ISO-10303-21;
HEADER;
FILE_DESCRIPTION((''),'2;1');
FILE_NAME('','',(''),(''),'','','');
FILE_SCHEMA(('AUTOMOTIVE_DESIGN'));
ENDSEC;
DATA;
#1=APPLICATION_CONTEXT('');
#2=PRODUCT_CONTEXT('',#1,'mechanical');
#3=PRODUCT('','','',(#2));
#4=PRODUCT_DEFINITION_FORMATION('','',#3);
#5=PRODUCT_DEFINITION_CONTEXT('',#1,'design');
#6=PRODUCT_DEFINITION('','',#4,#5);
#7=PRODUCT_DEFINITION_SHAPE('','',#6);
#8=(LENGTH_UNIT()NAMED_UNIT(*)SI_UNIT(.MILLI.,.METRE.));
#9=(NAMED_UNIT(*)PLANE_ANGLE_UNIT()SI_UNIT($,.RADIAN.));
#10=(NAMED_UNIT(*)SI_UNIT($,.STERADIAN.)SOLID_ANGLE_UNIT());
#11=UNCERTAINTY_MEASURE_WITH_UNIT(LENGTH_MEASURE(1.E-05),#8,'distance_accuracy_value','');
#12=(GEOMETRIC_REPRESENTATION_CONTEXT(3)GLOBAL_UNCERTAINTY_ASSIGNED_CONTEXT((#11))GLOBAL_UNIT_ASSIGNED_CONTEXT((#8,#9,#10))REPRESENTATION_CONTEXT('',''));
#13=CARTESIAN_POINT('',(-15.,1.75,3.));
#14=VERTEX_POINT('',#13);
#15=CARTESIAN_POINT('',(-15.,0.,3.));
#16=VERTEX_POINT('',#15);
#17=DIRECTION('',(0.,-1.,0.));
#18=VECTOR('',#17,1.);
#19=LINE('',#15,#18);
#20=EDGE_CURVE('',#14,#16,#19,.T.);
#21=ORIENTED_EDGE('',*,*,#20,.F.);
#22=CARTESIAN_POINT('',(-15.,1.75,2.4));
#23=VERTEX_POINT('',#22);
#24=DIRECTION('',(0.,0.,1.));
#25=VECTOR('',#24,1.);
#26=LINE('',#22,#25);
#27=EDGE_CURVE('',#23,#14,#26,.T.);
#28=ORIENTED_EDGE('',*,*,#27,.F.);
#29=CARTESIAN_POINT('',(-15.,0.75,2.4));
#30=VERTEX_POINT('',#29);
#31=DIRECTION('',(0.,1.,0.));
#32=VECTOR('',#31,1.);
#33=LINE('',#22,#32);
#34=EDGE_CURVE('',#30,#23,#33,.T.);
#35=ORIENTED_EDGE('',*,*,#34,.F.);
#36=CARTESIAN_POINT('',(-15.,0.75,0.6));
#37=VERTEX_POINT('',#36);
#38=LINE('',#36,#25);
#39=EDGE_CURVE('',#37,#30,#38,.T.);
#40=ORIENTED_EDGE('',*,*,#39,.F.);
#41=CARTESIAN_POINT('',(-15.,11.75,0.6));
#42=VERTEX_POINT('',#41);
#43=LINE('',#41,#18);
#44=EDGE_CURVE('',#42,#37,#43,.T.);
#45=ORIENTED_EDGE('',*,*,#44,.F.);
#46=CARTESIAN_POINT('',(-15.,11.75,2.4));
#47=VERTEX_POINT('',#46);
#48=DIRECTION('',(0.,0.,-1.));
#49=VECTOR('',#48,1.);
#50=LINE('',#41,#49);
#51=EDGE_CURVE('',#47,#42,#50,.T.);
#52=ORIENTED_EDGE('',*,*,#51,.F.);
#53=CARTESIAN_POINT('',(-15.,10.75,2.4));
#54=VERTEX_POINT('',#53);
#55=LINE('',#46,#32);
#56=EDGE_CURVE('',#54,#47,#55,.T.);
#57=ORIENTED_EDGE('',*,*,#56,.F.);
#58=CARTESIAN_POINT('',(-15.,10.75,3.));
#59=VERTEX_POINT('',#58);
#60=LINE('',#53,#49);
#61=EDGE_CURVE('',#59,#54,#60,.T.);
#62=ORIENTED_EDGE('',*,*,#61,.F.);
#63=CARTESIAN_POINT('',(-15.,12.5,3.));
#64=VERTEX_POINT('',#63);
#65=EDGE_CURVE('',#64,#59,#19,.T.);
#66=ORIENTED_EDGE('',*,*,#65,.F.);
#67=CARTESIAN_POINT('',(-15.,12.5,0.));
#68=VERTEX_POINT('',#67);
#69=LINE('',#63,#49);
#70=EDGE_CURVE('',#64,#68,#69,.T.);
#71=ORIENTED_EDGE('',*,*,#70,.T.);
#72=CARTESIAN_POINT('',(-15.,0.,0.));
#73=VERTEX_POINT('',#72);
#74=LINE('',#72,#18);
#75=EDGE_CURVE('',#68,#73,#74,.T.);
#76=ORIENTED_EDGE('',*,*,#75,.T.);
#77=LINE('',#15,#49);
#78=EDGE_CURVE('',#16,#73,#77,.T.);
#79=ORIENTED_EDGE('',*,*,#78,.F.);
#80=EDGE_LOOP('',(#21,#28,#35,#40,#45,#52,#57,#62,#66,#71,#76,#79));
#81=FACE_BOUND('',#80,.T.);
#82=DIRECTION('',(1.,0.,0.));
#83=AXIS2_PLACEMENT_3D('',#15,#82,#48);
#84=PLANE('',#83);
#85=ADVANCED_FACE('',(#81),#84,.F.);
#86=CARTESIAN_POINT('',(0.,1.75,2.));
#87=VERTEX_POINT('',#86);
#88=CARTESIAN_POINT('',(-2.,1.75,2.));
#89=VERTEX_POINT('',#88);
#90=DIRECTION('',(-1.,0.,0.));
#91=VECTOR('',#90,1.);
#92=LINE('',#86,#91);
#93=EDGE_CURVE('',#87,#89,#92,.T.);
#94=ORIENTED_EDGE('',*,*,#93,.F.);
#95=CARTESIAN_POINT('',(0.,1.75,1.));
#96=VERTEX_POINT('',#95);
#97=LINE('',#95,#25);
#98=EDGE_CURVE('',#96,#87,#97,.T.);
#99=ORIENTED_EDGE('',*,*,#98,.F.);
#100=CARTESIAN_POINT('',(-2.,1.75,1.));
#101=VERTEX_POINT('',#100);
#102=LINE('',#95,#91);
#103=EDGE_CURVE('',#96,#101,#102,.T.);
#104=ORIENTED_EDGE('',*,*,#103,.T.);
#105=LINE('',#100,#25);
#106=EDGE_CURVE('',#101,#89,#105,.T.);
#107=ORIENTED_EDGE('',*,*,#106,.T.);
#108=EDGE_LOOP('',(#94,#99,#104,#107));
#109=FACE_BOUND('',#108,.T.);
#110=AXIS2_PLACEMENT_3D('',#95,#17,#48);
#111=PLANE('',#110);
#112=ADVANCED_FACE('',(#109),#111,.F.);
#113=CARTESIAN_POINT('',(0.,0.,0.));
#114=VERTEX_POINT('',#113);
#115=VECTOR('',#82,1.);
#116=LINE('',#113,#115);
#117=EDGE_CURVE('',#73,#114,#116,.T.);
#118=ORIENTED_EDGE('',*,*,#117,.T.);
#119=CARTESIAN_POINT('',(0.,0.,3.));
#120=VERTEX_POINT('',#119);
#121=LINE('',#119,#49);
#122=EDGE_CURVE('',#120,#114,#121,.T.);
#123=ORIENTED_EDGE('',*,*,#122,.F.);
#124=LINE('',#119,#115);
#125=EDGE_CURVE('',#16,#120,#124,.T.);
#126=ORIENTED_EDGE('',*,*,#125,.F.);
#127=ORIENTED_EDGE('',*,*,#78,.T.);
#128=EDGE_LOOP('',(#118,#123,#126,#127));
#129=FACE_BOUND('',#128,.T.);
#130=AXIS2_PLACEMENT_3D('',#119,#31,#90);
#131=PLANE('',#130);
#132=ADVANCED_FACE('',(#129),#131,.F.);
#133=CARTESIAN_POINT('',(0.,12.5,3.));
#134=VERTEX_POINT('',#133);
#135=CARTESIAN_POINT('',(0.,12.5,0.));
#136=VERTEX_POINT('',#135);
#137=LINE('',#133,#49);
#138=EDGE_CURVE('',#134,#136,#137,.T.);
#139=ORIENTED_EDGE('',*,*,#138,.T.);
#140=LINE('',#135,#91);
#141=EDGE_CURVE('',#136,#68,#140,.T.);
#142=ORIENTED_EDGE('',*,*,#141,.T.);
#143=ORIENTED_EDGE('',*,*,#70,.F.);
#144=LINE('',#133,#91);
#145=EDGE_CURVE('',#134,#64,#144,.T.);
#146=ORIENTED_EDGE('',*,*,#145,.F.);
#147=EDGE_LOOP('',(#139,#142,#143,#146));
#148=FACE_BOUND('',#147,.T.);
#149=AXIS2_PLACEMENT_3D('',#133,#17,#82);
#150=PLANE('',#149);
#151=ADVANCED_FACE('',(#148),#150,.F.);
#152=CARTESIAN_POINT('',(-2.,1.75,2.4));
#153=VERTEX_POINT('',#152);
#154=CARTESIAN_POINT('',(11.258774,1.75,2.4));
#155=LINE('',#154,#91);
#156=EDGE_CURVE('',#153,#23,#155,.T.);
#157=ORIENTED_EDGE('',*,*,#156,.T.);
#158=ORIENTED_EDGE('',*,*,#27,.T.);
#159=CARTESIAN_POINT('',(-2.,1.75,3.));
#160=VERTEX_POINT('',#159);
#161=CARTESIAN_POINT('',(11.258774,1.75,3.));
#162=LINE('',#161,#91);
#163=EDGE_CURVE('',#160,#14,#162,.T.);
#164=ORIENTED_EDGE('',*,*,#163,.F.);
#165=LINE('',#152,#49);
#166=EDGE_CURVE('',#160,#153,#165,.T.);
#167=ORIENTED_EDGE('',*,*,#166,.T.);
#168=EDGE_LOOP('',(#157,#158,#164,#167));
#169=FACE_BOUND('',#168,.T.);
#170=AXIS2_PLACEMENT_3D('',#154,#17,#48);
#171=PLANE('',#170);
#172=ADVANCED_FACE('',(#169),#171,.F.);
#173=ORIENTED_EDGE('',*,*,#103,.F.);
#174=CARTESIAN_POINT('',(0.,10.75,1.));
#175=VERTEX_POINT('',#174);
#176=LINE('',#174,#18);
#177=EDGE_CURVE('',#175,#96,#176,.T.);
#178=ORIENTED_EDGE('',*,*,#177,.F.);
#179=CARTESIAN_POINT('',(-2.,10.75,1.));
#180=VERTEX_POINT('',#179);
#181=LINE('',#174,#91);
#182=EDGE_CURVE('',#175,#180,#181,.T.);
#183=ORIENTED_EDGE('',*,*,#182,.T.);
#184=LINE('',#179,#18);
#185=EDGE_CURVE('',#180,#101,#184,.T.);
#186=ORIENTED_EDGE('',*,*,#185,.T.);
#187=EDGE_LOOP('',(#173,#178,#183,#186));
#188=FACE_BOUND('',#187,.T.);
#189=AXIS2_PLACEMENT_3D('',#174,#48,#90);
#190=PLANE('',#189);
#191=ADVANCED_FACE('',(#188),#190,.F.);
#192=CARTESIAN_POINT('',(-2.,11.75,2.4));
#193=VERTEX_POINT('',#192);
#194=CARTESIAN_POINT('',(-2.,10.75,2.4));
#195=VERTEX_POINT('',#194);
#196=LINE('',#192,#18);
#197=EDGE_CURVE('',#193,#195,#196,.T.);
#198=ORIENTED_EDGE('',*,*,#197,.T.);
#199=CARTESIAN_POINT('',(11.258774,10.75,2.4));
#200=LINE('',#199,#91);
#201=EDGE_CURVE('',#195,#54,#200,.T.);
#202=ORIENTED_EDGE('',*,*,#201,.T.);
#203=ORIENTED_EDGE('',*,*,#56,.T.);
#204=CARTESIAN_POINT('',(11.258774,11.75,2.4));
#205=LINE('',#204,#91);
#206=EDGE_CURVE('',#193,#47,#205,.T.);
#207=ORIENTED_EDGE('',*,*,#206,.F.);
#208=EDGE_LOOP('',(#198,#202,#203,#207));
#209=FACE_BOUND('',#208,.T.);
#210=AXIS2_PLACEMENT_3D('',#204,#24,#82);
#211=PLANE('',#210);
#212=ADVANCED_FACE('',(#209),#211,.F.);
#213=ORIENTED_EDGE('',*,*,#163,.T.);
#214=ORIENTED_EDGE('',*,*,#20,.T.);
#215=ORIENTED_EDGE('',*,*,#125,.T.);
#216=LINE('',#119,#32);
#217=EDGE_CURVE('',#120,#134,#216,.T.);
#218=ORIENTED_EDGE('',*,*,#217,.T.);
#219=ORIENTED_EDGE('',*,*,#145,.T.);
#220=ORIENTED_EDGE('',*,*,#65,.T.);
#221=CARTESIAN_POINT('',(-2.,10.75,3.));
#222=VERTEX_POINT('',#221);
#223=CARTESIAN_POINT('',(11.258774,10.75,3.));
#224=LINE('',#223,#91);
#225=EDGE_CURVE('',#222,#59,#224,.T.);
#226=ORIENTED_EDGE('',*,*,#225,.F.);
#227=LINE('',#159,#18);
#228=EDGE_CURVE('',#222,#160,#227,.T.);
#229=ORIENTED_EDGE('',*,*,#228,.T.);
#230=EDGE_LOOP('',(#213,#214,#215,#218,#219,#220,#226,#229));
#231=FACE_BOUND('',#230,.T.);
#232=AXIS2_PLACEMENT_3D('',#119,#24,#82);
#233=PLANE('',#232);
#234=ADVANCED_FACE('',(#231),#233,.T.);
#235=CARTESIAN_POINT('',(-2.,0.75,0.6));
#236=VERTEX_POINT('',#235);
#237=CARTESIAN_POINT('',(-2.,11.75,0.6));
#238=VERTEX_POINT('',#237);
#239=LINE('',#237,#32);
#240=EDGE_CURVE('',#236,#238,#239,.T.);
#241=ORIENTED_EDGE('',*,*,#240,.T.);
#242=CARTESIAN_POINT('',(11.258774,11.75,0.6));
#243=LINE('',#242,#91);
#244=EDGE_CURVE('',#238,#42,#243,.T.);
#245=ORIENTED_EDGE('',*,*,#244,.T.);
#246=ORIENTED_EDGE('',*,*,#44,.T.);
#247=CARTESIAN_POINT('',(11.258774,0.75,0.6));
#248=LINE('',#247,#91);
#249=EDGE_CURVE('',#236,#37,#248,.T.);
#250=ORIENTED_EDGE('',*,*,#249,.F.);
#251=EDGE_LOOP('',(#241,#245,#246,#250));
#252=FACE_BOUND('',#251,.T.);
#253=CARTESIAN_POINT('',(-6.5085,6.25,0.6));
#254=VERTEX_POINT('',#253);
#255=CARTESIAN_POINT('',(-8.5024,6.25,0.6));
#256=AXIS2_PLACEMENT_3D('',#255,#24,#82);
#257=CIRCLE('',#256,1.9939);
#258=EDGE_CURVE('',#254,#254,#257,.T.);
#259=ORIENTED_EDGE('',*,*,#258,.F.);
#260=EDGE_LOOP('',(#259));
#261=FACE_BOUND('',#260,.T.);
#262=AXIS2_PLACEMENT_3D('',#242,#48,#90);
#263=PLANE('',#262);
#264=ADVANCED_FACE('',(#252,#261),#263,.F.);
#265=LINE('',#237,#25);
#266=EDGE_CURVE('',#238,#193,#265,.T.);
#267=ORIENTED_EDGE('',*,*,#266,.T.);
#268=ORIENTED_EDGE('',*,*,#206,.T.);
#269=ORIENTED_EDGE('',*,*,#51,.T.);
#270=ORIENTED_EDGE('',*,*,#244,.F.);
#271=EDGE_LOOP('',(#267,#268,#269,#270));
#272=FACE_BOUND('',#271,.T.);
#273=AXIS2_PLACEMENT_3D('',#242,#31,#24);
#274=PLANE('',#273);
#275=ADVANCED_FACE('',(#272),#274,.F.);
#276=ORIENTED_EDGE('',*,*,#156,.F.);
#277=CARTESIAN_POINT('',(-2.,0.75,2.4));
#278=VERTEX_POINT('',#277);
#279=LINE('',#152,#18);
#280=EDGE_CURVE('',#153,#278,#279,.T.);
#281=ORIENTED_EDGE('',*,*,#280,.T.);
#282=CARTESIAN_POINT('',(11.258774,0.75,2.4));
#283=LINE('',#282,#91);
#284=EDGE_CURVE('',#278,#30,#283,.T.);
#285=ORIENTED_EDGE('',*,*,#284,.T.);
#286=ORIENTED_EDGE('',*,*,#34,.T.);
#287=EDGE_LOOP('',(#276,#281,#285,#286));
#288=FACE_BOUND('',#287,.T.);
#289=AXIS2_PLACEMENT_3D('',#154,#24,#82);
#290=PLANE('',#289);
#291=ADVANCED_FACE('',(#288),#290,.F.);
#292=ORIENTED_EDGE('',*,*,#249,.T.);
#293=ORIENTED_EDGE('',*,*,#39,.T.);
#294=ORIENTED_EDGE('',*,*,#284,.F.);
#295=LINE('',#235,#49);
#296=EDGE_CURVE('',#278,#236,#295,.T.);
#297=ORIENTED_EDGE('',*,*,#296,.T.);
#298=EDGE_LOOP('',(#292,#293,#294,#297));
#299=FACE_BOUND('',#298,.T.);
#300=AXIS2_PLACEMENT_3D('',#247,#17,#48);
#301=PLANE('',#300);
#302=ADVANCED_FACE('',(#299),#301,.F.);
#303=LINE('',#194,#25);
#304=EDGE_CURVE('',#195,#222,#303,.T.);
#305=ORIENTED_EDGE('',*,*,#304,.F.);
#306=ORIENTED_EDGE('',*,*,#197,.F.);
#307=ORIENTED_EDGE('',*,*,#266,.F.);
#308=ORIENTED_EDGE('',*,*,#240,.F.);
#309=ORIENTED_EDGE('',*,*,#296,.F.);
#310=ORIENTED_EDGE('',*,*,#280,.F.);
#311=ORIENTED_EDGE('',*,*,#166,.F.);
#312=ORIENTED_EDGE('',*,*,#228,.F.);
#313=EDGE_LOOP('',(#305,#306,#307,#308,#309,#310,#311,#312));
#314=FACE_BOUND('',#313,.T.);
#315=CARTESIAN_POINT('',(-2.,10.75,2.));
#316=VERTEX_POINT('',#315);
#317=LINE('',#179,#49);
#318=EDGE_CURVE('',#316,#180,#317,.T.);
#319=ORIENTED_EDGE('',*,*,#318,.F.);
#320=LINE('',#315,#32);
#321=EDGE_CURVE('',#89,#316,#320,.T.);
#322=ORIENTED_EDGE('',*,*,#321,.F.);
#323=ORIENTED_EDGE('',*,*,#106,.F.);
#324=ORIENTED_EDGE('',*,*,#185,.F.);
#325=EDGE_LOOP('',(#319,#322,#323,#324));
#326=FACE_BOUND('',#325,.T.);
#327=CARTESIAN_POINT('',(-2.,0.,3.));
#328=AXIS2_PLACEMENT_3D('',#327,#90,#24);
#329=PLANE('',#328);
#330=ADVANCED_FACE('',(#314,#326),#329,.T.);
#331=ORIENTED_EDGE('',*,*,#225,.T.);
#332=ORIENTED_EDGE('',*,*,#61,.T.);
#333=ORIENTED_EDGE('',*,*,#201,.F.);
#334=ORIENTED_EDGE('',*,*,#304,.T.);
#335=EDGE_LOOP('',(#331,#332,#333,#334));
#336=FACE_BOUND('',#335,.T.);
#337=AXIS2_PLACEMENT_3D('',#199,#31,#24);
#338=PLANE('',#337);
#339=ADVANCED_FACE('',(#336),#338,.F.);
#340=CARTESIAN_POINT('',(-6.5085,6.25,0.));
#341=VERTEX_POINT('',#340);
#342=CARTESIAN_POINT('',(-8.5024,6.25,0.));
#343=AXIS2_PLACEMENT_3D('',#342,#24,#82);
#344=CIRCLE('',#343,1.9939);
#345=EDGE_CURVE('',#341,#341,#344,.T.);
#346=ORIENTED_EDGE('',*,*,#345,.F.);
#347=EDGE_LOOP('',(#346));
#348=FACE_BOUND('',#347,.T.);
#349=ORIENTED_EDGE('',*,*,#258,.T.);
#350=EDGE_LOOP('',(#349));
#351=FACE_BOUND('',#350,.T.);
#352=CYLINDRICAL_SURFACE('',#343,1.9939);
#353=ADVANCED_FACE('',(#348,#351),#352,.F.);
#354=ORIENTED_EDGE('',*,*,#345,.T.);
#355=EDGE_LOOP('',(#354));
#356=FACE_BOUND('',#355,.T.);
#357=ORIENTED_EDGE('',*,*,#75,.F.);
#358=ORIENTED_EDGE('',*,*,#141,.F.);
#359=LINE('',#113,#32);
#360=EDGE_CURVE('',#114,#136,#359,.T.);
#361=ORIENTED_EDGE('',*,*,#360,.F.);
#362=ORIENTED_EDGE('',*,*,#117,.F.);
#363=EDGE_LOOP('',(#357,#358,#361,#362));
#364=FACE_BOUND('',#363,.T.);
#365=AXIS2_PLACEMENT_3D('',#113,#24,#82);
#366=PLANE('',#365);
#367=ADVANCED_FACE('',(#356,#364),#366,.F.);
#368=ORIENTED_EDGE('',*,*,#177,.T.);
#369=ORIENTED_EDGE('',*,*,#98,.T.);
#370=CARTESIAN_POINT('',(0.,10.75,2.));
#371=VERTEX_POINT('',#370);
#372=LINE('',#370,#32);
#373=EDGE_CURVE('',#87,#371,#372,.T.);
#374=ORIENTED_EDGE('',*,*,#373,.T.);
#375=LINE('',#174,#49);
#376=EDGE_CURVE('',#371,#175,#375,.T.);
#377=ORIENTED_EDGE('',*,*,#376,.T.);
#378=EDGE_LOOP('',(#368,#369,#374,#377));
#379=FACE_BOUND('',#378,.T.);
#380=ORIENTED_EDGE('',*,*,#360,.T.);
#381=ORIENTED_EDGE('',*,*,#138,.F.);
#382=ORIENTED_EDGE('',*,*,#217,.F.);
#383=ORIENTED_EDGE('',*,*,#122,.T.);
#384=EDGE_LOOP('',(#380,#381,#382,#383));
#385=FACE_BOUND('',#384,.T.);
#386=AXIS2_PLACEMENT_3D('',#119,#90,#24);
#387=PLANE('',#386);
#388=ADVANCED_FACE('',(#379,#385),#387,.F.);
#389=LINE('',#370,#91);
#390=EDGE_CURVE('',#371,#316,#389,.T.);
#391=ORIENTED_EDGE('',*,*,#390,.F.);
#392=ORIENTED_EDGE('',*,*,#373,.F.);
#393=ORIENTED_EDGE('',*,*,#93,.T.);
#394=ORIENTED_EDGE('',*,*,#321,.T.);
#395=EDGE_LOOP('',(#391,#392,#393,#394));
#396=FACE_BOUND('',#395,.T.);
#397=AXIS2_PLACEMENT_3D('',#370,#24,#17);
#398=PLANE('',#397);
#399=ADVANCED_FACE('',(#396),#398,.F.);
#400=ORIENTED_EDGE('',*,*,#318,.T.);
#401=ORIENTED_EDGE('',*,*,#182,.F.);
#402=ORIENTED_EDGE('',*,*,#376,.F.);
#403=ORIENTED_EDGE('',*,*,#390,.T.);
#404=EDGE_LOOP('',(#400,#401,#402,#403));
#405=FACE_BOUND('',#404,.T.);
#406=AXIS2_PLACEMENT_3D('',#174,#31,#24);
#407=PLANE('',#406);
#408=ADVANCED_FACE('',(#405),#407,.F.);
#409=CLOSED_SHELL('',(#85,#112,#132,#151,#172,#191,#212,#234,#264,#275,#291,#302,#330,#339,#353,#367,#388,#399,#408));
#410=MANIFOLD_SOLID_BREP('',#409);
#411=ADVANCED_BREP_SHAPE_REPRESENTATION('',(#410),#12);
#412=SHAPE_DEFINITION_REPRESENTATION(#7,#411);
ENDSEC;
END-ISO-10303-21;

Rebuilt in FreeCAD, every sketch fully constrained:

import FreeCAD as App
import Part
import Sketcher

V = App.Vector

doc = App.newDocument("Part")
body = doc.addObject("PartDesign::Body", "Body")

# Sketch on XY plane
sketch1 = doc.addObject("Sketcher::SketchObject", "Sketch")
body.addObject(sketch1)
sketch1.AttachmentSupport = (doc.XY_Plane, [""])
sketch1.MapMode = "FlatFace"
sketch1.addGeometry([
    Part.LineSegment(V(-15, 12.5, 0), V(-15, 0, 0)),
    Part.LineSegment(V(-15, 0, 0), V(0, 0, 0)),
    Part.LineSegment(V(0, 0, 0), V(0, 12.5, 0)),
    Part.LineSegment(V(0, 12.5, 0), V(-15, 12.5, 0)),
], False)
sketch1.addConstraint([
    Sketcher.Constraint("Coincident", 0, 2, 1, 1),
    Sketcher.Constraint("Coincident", 1, 2, 2, 1),
    Sketcher.Constraint("Coincident", 2, 2, 3, 1),
    Sketcher.Constraint("Coincident", 3, 2, 0, 1),
    Sketcher.Constraint("Vertical", 0),
    Sketcher.Constraint("Horizontal", 1),
    Sketcher.Constraint("Vertical", 2),
    Sketcher.Constraint("Horizontal", 3),
    Sketcher.Constraint("Coincident", 1, 2, -1, 1),
    Sketcher.Constraint("DistanceX", 1, 1, 1, 2, 15.0),
    Sketcher.Constraint("DistanceY", 0, 2, 0, 1, 12.5),
])
pad1 = doc.addObject("PartDesign::Pad", "Pad")
body.addObject(pad1)
pad1.Profile = sketch1
pad1.Length = 3

# Sketch on YZ plane
sketch2 = doc.addObject("Sketcher::SketchObject", "Sketch001")
body.addObject(sketch2)
sketch2.AttachmentSupport = (doc.YZ_Plane, [""])
sketch2.MapMode = "FlatFace"
sketch2.AttachmentOffset = App.Placement(V(0, 0, -15), App.Rotation())
sketch2.addGeometry([
    Part.LineSegment(V(11.75, 2.4, 0), V(11.75, 0.6, 0)),  # 0
    Part.LineSegment(V(11.75, 0.6, 0), V(0.75, 0.6, 0)),  # 1
    Part.LineSegment(V(0.75, 0.6, 0), V(0.75, 2.4, 0)),  # 2
    Part.LineSegment(V(0.75, 2.4, 0), V(1.75, 2.4, 0)),  # 3
    Part.LineSegment(V(1.75, 2.4, 0), V(1.75, 3, 0)),  # 4
    Part.LineSegment(V(1.75, 3, 0), V(10.75, 3, 0)),  # 5
    Part.LineSegment(V(10.75, 3, 0), V(10.75, 2.4, 0)),  # 6
    Part.LineSegment(V(10.75, 2.4, 0), V(11.75, 2.4, 0)),  # 7
], False)
sketch2.addConstraint([
    Sketcher.Constraint("Coincident", 0, 2, 1, 1),
    Sketcher.Constraint("Coincident", 1, 2, 2, 1),
    Sketcher.Constraint("Coincident", 2, 2, 3, 1),
    Sketcher.Constraint("Coincident", 3, 2, 4, 1),
    Sketcher.Constraint("Coincident", 4, 2, 5, 1),
    Sketcher.Constraint("Coincident", 5, 2, 6, 1),
    Sketcher.Constraint("Coincident", 6, 2, 7, 1),
    Sketcher.Constraint("Coincident", 7, 2, 0, 1),
    Sketcher.Constraint("Vertical", 0),
    Sketcher.Constraint("Horizontal", 1),
    Sketcher.Constraint("Vertical", 2),
    Sketcher.Constraint("Horizontal", 3),
    Sketcher.Constraint("Vertical", 4),
    Sketcher.Constraint("Horizontal", 5),
    Sketcher.Constraint("Vertical", 6),
    Sketcher.Constraint("Horizontal", 7),
    Sketcher.Constraint("Horizontal", 3, 2, 6, 2),
    Sketcher.Constraint("Equal", 3, 7),
    Sketcher.Constraint("DistanceX", 1, 2, 1, 1, 11.0),
    Sketcher.Constraint("DistanceX", 3, 1, 3, 2, 1.0),
    Sketcher.Constraint("DistanceY", 0, 2, 0, 1, 1.8),
    Sketcher.Constraint("DistanceY", 4, 1, 4, 2, 0.6),
    Sketcher.Constraint("DistanceY", -1, 1, 4, 2, 3.0),
    Sketcher.Constraint("DistanceX", -1, 1, 0, 2, 11.75),
])
pocket1 = doc.addObject("PartDesign::Pocket", "Pocket")
body.addObject(pocket1)
pocket1.Profile = sketch2
pocket1.Length = 13
pocket1.Reversed = True

# Sketch on YZ plane
sketch3 = doc.addObject("Sketcher::SketchObject", "Sketch002")
body.addObject(sketch3)
sketch3.AttachmentSupport = (doc.YZ_Plane, [""])
sketch3.MapMode = "FlatFace"
sketch3.AttachmentOffset = App.Placement(V(0, 0, -2), App.Rotation())
sketch3.addGeometry([
    Part.LineSegment(V(10.75, 1, 0), V(1.75, 1, 0)),
    Part.LineSegment(V(1.75, 1, 0), V(1.75, 2, 0)),
    Part.LineSegment(V(1.75, 2, 0), V(10.75, 2, 0)),
    Part.LineSegment(V(10.75, 2, 0), V(10.75, 1, 0)),
], False)
sketch3.addConstraint([
    Sketcher.Constraint("Coincident", 0, 2, 1, 1),
    Sketcher.Constraint("Coincident", 1, 2, 2, 1),
    Sketcher.Constraint("Coincident", 2, 2, 3, 1),
    Sketcher.Constraint("Coincident", 3, 2, 0, 1),
    Sketcher.Constraint("Horizontal", 0),
    Sketcher.Constraint("Vertical", 1),
    Sketcher.Constraint("Horizontal", 2),
    Sketcher.Constraint("Vertical", 3),
    Sketcher.Constraint("DistanceX", 0, 2, 0, 1, 9.0),
    Sketcher.Constraint("DistanceY", 1, 1, 1, 2, 1.0),
    Sketcher.Constraint("DistanceY", -1, 1, 0, 2, 1.0),
    Sketcher.Constraint("DistanceX", -1, 1, 0, 2, 1.75),
])
pocket2 = doc.addObject("PartDesign::Pocket", "Pocket001")
body.addObject(pocket2)
pocket2.Profile = sketch3
pocket2.Type = "ThroughAll"
pocket2.Reversed = True

# Sketch on XY plane
sketch4 = doc.addObject("Sketcher::SketchObject", "Sketch003")
body.addObject(sketch4)
sketch4.AttachmentSupport = (doc.XY_Plane, [""])
sketch4.MapMode = "FlatFace"
sketch4.AttachmentOffset = App.Placement(V(0, 0, 0.6), App.Rotation())
sketch4.addGeometry(Part.Circle(V(-8.5024, 6.25, 0), V(0, 0, 1), 1.9939), False)
sketch4.addConstraint([
    Sketcher.Constraint("Diameter", 0, 3.9878),
    Sketcher.Constraint("DistanceY", -1, 1, 0, 3, 6.25),
    Sketcher.Constraint("DistanceX", 0, 3, -1, 1, 8.5024),
])
pocket3 = doc.addObject("PartDesign::Pocket", "Pocket002")
body.addObject(pocket3)
pocket3.Profile = sketch4
pocket3.Type = "ThroughAll"

doc.recompute()
